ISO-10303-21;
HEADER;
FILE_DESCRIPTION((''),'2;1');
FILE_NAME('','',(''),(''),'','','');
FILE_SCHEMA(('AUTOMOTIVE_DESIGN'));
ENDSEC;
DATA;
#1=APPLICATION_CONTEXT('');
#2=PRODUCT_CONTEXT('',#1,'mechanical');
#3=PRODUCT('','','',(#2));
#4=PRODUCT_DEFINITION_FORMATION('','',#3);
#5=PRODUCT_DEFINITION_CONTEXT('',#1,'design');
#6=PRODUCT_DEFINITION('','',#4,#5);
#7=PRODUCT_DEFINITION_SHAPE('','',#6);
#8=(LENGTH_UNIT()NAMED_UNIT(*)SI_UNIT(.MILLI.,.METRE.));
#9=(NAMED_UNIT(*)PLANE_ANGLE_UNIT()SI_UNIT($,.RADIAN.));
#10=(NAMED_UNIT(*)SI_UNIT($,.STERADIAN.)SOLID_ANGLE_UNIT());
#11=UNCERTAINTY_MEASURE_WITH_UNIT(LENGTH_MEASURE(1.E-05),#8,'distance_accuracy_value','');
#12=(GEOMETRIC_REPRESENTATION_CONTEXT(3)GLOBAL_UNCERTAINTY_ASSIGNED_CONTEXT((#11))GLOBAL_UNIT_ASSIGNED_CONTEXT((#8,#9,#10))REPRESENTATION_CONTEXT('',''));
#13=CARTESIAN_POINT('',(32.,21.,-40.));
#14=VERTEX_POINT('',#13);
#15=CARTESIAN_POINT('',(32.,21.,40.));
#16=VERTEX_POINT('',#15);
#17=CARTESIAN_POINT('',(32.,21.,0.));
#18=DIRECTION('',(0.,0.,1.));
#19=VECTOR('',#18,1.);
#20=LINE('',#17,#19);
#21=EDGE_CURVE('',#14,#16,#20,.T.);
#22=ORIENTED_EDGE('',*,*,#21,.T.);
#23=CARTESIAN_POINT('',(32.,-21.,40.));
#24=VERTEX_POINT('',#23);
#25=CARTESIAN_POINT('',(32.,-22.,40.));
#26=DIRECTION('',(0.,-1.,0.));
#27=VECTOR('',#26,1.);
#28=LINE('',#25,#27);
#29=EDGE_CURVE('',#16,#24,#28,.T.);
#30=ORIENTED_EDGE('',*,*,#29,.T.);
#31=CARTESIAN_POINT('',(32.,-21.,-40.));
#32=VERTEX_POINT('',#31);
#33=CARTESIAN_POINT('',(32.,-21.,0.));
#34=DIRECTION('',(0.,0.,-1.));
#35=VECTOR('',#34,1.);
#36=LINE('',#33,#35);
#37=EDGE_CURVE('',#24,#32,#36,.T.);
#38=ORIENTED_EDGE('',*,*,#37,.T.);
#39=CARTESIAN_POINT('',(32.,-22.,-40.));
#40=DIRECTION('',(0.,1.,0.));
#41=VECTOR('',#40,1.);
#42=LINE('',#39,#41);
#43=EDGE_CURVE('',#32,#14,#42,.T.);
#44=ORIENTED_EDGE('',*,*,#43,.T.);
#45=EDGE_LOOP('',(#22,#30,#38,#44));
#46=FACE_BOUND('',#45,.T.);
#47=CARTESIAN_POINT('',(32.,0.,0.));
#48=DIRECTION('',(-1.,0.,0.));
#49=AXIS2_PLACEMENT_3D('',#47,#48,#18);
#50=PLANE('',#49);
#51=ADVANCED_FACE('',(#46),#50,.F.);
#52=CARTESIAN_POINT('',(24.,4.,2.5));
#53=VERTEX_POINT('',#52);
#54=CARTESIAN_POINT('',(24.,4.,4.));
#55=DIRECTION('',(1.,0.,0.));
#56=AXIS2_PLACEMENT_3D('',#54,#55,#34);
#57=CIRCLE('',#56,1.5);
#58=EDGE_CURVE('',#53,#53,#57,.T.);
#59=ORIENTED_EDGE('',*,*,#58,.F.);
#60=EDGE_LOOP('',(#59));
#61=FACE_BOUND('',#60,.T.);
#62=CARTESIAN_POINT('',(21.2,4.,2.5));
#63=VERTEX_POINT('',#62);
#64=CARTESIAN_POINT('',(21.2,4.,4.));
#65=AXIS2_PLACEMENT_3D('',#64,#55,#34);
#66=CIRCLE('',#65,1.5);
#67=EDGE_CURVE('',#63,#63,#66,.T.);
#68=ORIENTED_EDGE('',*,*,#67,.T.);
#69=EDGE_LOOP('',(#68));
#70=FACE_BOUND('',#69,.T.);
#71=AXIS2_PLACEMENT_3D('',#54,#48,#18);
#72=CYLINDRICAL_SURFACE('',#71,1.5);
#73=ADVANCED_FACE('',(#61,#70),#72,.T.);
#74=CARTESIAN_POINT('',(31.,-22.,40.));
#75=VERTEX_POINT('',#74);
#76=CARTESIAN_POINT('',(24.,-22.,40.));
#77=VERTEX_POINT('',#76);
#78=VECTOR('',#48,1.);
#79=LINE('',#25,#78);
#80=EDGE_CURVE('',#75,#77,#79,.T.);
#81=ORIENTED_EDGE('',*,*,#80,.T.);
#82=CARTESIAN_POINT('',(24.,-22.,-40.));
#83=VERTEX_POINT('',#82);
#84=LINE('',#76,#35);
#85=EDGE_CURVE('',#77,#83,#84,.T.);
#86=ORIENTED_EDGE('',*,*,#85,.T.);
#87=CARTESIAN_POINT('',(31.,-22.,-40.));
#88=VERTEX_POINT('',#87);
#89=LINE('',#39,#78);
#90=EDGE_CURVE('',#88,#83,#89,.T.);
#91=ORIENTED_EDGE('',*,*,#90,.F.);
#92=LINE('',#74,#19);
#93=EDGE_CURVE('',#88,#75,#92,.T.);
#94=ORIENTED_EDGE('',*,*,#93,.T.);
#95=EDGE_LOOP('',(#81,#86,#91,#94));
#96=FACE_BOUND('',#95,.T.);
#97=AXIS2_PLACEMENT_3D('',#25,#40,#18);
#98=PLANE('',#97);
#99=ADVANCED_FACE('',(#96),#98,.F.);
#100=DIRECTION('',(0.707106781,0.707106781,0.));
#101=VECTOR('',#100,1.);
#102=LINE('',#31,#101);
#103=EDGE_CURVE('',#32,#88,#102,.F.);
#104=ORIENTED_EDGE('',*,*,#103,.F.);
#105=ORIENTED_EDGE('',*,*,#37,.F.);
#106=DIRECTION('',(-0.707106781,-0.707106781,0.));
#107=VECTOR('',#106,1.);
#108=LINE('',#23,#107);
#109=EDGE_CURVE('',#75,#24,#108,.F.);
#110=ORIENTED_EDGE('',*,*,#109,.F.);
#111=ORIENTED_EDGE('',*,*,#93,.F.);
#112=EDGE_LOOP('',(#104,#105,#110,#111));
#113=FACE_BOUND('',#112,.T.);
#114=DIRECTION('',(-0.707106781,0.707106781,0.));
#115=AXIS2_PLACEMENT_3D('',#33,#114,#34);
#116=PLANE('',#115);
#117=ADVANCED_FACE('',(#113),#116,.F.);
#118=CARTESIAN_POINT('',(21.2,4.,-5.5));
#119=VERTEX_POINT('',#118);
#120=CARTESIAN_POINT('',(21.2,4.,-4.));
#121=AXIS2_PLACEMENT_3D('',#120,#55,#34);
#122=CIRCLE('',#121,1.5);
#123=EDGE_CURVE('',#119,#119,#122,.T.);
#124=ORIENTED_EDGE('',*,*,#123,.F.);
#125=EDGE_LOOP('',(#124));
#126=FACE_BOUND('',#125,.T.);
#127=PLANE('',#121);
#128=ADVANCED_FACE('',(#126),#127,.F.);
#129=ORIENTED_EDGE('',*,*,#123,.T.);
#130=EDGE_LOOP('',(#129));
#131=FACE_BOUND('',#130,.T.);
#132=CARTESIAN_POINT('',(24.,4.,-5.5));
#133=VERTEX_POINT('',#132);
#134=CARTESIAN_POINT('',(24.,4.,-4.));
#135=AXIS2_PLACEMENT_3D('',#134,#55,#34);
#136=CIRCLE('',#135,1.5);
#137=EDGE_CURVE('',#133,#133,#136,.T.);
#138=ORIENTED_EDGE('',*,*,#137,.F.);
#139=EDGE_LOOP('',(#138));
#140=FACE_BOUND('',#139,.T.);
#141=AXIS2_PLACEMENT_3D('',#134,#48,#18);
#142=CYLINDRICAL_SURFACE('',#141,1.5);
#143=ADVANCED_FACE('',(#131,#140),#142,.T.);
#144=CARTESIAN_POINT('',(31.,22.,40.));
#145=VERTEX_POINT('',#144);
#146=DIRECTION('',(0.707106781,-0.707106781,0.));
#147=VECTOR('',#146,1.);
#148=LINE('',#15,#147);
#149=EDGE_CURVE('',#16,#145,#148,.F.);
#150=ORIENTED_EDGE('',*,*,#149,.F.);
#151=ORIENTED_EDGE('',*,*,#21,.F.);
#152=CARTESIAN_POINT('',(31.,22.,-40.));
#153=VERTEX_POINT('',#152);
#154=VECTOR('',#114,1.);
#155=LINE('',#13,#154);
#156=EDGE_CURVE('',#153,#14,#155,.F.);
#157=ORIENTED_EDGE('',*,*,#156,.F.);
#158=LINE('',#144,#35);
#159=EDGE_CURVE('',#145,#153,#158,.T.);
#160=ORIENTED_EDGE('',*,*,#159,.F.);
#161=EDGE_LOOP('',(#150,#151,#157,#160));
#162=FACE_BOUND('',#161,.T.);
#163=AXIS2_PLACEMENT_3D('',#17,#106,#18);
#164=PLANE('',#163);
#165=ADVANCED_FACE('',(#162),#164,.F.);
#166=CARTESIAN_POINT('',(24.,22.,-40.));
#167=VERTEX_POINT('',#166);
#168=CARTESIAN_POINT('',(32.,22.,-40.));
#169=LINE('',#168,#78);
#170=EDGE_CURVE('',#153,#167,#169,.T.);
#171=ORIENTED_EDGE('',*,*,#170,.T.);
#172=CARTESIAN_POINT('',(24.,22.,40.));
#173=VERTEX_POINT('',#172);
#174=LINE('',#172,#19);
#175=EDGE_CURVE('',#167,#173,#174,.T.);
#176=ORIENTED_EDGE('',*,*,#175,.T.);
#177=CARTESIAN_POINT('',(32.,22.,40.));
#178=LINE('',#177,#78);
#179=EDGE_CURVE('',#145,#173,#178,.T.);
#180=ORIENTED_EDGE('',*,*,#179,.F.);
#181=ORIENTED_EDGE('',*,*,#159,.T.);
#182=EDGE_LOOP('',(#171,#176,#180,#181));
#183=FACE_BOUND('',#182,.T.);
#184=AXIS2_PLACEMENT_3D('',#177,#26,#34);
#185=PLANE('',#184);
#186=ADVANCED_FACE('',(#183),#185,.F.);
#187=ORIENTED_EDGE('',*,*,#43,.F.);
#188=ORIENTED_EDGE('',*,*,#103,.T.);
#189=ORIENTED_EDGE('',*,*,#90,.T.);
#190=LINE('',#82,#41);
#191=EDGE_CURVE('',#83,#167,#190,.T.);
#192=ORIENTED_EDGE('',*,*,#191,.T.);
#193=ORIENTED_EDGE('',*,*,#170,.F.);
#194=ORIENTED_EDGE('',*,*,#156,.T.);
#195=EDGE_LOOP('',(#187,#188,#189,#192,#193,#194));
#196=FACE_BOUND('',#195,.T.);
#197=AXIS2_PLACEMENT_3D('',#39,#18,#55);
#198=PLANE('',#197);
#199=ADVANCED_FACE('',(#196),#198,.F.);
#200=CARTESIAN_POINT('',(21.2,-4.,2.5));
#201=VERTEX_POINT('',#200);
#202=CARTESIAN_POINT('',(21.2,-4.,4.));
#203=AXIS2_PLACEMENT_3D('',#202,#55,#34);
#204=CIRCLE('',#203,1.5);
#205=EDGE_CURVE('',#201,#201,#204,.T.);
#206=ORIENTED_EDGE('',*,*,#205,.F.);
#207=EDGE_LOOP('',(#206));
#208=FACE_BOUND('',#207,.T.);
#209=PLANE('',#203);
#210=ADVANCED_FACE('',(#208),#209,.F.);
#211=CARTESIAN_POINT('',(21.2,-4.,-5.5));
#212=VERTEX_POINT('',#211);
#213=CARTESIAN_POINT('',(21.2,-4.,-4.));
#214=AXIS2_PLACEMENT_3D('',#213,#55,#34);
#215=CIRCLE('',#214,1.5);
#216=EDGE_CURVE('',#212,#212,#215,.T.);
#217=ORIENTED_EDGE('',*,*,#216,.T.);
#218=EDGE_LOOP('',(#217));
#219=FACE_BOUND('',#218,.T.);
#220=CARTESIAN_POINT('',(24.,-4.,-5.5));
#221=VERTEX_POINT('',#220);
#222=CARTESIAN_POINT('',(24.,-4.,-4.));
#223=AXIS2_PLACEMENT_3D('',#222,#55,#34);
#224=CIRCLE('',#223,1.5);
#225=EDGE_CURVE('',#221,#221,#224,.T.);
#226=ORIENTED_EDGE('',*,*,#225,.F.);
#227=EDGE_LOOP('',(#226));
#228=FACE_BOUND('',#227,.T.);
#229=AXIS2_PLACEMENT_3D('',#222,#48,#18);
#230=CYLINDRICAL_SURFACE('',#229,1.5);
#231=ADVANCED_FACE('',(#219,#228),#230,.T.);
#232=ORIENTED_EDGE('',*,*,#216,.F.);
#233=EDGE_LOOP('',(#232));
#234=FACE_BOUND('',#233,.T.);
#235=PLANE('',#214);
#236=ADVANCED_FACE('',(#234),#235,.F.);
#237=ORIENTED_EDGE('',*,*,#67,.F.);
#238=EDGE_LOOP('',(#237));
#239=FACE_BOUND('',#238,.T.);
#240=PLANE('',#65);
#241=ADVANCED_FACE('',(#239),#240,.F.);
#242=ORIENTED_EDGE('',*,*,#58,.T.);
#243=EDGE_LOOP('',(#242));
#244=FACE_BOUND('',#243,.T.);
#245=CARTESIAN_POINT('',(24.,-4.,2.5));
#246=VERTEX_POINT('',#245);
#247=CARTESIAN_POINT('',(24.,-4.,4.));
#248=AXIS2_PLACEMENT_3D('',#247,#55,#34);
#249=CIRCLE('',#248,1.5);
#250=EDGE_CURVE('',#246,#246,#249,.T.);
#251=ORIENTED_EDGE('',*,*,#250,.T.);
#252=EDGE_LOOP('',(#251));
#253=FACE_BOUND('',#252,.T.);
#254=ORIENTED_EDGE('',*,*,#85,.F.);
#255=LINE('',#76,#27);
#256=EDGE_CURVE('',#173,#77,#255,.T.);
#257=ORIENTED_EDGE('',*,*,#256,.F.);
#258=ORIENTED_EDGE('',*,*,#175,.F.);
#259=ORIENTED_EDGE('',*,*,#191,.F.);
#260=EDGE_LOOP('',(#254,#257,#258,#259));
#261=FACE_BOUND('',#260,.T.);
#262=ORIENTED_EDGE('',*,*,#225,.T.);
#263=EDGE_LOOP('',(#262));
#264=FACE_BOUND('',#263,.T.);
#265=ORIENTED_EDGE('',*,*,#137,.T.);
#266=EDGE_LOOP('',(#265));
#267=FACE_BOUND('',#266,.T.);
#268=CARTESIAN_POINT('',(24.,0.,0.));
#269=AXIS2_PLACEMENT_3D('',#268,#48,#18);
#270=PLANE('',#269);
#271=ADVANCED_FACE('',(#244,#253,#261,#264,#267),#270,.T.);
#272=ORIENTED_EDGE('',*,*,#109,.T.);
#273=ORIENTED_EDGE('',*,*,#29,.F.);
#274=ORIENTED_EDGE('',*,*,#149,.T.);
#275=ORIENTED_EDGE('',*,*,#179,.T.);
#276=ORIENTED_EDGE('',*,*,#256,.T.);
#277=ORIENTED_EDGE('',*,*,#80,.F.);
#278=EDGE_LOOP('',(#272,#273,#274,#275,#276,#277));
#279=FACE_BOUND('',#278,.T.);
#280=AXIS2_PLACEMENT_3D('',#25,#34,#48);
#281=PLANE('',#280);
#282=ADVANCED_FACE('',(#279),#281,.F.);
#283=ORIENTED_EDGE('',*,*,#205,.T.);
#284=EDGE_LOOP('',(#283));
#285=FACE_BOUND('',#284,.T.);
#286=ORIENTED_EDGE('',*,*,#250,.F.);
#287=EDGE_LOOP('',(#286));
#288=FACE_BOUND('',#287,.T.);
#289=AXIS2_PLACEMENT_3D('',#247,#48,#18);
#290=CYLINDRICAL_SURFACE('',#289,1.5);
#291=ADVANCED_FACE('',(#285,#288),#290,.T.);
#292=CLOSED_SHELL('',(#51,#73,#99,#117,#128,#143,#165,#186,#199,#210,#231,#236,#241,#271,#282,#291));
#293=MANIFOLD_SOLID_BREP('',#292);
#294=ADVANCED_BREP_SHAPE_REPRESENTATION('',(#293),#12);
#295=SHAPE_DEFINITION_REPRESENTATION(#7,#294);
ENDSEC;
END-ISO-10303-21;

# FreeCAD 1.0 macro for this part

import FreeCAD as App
import Part
import Sketcher
from FreeCAD import Vector


def edges_at(feature, points):
    """Names of the edges that pass closest to the given points."""
    edges = feature.Shape.Edges
    near = lambda p: min(range(len(edges)), key=lambda i: edges[i].distToShape(Part.Vertex(*p))[0])
    return sorted({f"Edge{near(p) + 1}" for p in points})

doc = App.newDocument("Part")
body = doc.addObject("PartDesign::Body", "Body")

sketch1 = body.newObject("Sketcher::SketchObject", "Sketch")
sketch1.AttachmentSupport = (doc.getObject("YZ_Plane"), [""])
sketch1.MapMode = "FlatFace"
sketch1.AttachmentOffset = App.Placement(Vector(0, 0, 24), App.Rotation())
sketch1.addGeometry([
    Part.LineSegment(Vector(22, 40, 0), Vector(-22, 40, 0)),
    Part.LineSegment(Vector(-22, 40, 0), Vector(-22, -40, 0)),
    Part.LineSegment(Vector(-22, -40, 0), Vector(22, -40, 0)),
    Part.LineSegment(Vector(22, -40, 0), Vector(22, 40, 0)),
], False)
sketch1.addConstraint([
    Sketcher.Constraint("Coincident", 0, 2, 1, 1),
    Sketcher.Constraint("Coincident", 1, 2, 2, 1),
    Sketcher.Constraint("Coincident", 2, 2, 3, 1),
    Sketcher.Constraint("Coincident", 3, 2, 0, 1),
    Sketcher.Constraint("Horizontal", 0),
    Sketcher.Constraint("Vertical", 1),
    Sketcher.Constraint("Horizontal", 2),
    Sketcher.Constraint("Vertical", 3),
    Sketcher.Constraint("Symmetric", 0, 2, 2, 2, -1, 1),
    Sketcher.Constraint("DistanceX", 0, 2, 0, 1, 44.0),
    Sketcher.Constraint("DistanceY", 1, 2, 1, 1, 80.0),
])
pad1 = body.newObject("PartDesign::Pad", "Pad")
pad1.Profile = sketch1
pad1.Length = 8

sketch2 = body.newObject("Sketcher::SketchObject", "Sketch001")
sketch2.AttachmentSupport = (doc.getObject("YZ_Plane"), [""])
sketch2.MapMode = "FlatFace"
sketch2.AttachmentOffset = App.Placement(Vector(0, 0, 21.2), App.Rotation())
sketch2.addGeometry([
    Part.Circle(Vector(-4, 4, 0), Vector(0, 0, 1), 1.5),
    Part.Circle(Vector(-4, -4, 0), Vector(0, 0, 1), 1.5),
    Part.Circle(Vector(4, 4, 0), Vector(0, 0, 1), 1.5),
    Part.Circle(Vector(4, -4, 0), Vector(0, 0, 1), 1.5),
], False)
sketch2.addConstraint([
    Sketcher.Constraint("Equal", 0, 1),
    Sketcher.Constraint("Equal", 1, 2),
    Sketcher.Constraint("Equal", 2, 3),
    Sketcher.Constraint("Symmetric", 1, 3, 2, 3, -1, 1),
    Sketcher.Constraint("Symmetric", 0, 3, 3, 3, -1, 1),
    Sketcher.Constraint("Symmetric", 0, 3, 2, 3, -2),
    Sketcher.Constraint("Diameter", 0, 3.0),
    Sketcher.Constraint("DistanceX", 0, 3, -1, 1, 4.0),
    Sketcher.Constraint("DistanceY", -1, 1, 0, 3, 4.0),
])
pad2 = body.newObject("PartDesign::Pad", "Pad001")
pad2.Profile = sketch2
pad2.Length = 2.8
doc.recompute()

chamfer = body.newObject("PartDesign::Chamfer", "Chamfer")
chamfer.Base = (pad2, edges_at(pad2, [(32, 22, 0), (32, -22, 0)]))
chamfer.Size = 1

doc.recompute()
